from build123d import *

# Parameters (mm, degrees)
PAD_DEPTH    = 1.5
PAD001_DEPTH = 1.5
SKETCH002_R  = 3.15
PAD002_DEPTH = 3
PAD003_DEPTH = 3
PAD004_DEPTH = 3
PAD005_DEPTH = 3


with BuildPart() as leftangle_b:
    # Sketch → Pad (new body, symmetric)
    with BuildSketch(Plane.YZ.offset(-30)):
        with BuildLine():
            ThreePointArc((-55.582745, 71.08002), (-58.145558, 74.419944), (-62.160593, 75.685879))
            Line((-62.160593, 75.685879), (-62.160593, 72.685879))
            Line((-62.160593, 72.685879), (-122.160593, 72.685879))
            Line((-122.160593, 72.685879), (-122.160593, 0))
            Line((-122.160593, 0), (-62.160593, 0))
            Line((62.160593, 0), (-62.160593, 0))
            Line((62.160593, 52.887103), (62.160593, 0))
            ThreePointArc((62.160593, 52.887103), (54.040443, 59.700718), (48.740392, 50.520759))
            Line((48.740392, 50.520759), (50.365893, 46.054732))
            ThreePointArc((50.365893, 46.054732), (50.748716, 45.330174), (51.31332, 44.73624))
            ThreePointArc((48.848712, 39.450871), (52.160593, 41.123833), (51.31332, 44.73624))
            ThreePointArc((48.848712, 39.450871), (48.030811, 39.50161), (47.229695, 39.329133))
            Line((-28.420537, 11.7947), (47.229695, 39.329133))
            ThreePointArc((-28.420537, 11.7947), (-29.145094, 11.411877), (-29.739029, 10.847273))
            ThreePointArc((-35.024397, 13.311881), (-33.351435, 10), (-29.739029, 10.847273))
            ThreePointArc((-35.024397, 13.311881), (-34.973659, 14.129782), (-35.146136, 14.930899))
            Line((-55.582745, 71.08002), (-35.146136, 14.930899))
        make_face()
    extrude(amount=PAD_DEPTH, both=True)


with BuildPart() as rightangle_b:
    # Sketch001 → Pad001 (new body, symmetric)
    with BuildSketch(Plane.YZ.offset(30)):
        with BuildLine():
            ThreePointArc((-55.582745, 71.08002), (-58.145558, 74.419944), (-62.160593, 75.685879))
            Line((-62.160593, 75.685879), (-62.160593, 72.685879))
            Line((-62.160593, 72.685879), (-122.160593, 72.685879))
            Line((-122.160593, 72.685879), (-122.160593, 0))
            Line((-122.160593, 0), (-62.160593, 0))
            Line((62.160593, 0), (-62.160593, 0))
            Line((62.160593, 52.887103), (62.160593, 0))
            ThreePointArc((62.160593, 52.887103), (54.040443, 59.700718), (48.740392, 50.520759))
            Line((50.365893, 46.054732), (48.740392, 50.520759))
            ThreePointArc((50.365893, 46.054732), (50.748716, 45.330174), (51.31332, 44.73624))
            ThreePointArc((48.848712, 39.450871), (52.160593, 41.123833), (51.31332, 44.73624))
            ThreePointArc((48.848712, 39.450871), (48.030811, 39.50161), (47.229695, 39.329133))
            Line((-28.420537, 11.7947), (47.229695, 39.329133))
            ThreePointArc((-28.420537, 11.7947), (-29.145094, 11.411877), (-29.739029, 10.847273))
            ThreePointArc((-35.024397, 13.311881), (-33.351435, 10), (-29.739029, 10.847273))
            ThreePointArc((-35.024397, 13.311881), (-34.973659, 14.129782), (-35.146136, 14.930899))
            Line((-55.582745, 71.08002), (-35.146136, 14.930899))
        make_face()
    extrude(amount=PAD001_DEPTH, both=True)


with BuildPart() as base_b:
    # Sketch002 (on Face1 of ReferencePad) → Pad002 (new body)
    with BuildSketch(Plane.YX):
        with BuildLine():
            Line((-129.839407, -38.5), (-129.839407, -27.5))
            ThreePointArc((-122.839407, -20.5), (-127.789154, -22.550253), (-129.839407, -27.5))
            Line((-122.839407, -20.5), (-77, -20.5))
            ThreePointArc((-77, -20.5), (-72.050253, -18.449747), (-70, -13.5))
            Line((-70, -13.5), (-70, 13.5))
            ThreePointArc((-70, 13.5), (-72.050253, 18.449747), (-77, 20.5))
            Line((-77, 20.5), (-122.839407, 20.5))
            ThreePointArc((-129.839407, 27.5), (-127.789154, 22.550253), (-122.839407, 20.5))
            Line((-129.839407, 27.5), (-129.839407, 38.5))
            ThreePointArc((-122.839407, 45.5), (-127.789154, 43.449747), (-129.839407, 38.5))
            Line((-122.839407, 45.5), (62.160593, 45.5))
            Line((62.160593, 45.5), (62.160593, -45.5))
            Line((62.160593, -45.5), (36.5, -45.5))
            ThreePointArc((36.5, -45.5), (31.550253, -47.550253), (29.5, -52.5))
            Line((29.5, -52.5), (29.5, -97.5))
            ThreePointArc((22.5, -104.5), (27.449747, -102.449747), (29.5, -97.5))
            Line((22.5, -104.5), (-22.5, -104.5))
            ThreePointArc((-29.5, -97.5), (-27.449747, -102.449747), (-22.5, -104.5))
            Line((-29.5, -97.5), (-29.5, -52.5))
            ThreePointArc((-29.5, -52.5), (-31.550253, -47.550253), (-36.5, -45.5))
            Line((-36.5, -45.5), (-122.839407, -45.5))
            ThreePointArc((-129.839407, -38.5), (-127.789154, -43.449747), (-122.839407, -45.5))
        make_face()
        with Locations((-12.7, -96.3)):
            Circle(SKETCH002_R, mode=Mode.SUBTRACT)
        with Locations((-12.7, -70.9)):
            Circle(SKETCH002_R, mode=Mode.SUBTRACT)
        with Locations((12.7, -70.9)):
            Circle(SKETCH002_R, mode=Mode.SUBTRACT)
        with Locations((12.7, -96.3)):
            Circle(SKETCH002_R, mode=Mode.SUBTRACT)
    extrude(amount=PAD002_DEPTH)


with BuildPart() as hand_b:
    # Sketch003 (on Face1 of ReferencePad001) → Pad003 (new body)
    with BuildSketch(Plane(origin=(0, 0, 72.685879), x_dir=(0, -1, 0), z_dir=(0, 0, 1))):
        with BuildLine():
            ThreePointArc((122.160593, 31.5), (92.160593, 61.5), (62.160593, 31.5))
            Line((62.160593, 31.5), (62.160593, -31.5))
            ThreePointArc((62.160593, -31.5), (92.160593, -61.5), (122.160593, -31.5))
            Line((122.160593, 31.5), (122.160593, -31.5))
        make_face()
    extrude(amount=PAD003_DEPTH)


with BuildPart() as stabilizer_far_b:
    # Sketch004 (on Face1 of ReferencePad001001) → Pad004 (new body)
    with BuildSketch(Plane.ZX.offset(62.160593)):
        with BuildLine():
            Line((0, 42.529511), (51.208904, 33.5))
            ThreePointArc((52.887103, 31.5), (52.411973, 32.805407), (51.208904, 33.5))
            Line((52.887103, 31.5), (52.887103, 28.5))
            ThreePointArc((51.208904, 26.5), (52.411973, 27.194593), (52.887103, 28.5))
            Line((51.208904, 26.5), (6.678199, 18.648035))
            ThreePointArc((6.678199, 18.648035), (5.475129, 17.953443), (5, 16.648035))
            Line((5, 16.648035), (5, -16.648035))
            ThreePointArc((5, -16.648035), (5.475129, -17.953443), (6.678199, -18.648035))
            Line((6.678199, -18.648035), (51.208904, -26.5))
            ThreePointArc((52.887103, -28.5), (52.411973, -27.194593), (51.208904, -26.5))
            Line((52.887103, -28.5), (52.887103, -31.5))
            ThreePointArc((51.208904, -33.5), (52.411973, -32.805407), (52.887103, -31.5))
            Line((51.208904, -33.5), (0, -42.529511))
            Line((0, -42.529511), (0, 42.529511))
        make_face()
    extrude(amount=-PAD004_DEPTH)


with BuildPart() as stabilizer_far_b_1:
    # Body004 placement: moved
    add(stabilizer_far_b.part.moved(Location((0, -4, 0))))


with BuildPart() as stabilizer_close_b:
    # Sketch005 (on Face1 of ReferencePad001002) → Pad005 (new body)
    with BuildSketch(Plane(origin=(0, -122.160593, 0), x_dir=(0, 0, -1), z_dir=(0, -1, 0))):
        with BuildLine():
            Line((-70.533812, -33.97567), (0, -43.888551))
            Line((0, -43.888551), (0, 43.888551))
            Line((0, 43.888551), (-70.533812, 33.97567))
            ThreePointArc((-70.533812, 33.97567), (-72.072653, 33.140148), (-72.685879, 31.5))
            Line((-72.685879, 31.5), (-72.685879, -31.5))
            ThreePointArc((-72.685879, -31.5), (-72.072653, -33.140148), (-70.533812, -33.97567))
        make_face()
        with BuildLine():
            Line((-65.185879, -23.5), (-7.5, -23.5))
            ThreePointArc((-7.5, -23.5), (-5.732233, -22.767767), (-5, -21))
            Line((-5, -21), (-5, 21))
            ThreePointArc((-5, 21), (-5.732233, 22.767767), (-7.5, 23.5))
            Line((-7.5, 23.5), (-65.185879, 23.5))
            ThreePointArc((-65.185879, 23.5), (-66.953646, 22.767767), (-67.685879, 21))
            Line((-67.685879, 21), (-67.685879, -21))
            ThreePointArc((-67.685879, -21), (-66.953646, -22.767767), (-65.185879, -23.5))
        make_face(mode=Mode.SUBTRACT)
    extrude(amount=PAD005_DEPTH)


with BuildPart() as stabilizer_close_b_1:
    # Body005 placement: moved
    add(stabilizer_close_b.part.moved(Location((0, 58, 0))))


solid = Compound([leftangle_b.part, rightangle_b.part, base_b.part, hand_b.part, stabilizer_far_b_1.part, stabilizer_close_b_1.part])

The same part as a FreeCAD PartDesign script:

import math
import FreeCAD as App
import Part
import Sketcher
from FreeCAD import Vector
Q = App.Units.Quantity

doc = App.newDocument("Part")
body = doc.addObject("PartDesign::Body", "Body")

sketch1 = body.newObject("Sketcher::SketchObject", "Sketch")
sketch1.AttachmentSupport = (doc.getObject("YZ_Plane"), [""])
sketch1.MapMode = "FlatFace"
sketch1.AttachmentOffset = App.Placement(Vector(0, 0, -30), App.Rotation())
sketch1.addGeometry(Part.ArcOfCircle(Part.Circle(Vector(-62.160591, 68.685882, 0), Vector(0, 0, 1), 6.999997), math.radians(19.999981), math.radians(90.000016)), False)
sketch1.addGeometry(Part.LineSegment(Vector(-62.160593, 75.685879, 0), Vector(-62.160593, 72.685879, 0)), False)
sketch1.addGeometry(Part.LineSegment(Vector(-62.160593, 72.685879, 0), Vector(-122.160593, 72.685879, 0)), False)
sketch1.addGeometry(Part.LineSegment(Vector(-122.160593, 72.685879, 0), Vector(-122.160593, 0, 0)), False)
sketch1.addGeometry(Part.LineSegment(Vector(-122.160593, 0, 0), Vector(62.160593, 0, 0)), False)
sketch1.addGeometry(Part.LineSegment(Vector(62.160593, 0, 0), Vector(62.160593, 52.887103, 0)), False)
sketch1.addGeometry(Part.ArcOfCircle(Part.Circle(Vector(55.241867, 52.887103, 0), Vector(0, 0, 1), 6.918726), math.radians(-0.000002), math.radians(200.000006)), False)
sketch1.addGeometry(Part.LineSegment(Vector(48.740392, 50.520759, 0), Vector(50.365893, 46.054732, 0)), False)
sketch1.addGeometry(Part.ArcOfCircle(Part.Circle(Vector(53.184967, 47.080789, 0), Vector(0, 0, 1), 2.999995), math.radians(-160.000043), math.radians(-128.600279)), False)
sketch1.addGeometry(Part.ArcOfCircle(Part.Circle(Vector(49.441669, 42.391688, 0), Vector(0, 0, 1), 3), math.radians(-101.399713), math.radians(51.399714)), False)
sketch1.addGeometry(Part.ArcOfCircle(Part.Circle(Vector(48.255753, 36.510067, 0), Vector(0, 0, 1), 2.999988), math.radians(78.600208), math.radians(110.000038)), False)
sketch1.addGeometry(Part.LineSegment(Vector(47.229695, 39.329133, 0), Vector(-28.420537, 11.7947, 0)), False)
sketch1.addGeometry(Part.ArcOfCircle(Part.Circle(Vector(-27.394471, 8.975613, 0), Vector(0, 0, 1), 3.000011), math.radians(110.000038), math.radians(141.39964)), False)
sketch1.addGeometry(Part.ArcOfCircle(Part.Circle(Vector(-32.083581, 12.718923, 0), Vector(0, 0, 1), 3), math.radians(168.600279), math.radians(321.399713)), False)
sketch1.addGeometry(Part.ArcOfCircle(Part.Circle(Vector(-37.965219, 13.904837, 0), Vector(0, 0, 1), 3.000005), math.radians(-11.399675), math.radians(19.999986)), False)
sketch1.addGeometry(Part.LineSegment(Vector(-35.146136, 14.930899, 0), Vector(-55.582745, 71.08002, 0)), False)
sketch1.addConstraint(Sketcher.Constraint("Coincident", 0, 2, 1, 1))
sketch1.addConstraint(Sketcher.Constraint("Coincident", 1, 2, 2, 1))
sketch1.addConstraint(Sketcher.Constraint("Coincident", 2, 2, 3, 1))
sketch1.addConstraint(Sketcher.Constraint("Coincident", 3, 2, 4, 1))
sketch1.addConstraint(Sketcher.Constraint("Coincident", 4, 2, 5, 1))
sketch1.addConstraint(Sketcher.Constraint("Coincident", 5, 2, 6, 1))
sketch1.addConstraint(Sketcher.Constraint("Coincident", 6, 2, 7, 1))
sketch1.addConstraint(Sketcher.Constraint("Coincident", 7, 2, 8, 1))
sketch1.addConstraint(Sketcher.Constraint("Coincident", 8, 2, 9, 2))
sketch1.addConstraint(Sketcher.Constraint("Coincident", 9, 1, 10, 1))
sketch1.addConstraint(Sketcher.Constraint("Coincident", 10, 2, 11, 1))
sketch1.addConstraint(Sketcher.Constraint("Coincident", 11, 2, 12, 1))
sketch1.addConstraint(Sketcher.Constraint("Coincident", 12, 2, 13, 2))
sketch1.addConstraint(Sketcher.Constraint("Coincident", 13, 1, 14, 1))
sketch1.addConstraint(Sketcher.Constraint("Coincident", 14, 2, 15, 1))
sketch1.addConstraint(Sketcher.Constraint("Coincident", 15, 2, 0, 1))
sketch1.addConstraint(Sketcher.Constraint("Vertical", 1))
sketch1.addConstraint(Sketcher.Constraint("Horizontal", 2))
sketch1.addConstraint(Sketcher.Constraint("Vertical", 3))
sketch1.addConstraint(Sketcher.Constraint("Horizontal", 4))
sketch1.addConstraint(Sketcher.Constraint("Vertical", 5))
sketch1.addConstraint(Sketcher.Constraint("PointOnObject", 3, 2, -1))
sketch1.addConstraint(Sketcher.Constraint("Radius", 9, 3.0))
sketch1.addConstraint(Sketcher.Constraint("Radius", 13, 3.0))
sketch1.addConstraint(Sketcher.Constraint("DistanceX", 2, 2, 2, 1, 60.0))
sketch1.addConstraint(Sketcher.Constraint("DistanceY", 1, 2, 1, 1, 3.0))
sketch1.addConstraint(Sketcher.Constraint("DistanceX", 2, 2, 0, 3, 60.000002))
sketch1.addConstraint(Sketcher.Constraint("Radius", 12, 3.000011))
sketch1.addConstraint(Sketcher.Constraint("Radius", 0, 6.999997))
sketch1.addConstraint(Sketcher.Constraint("Radius", 6, 6.918726))
sketch1.addConstraint(Sketcher.Constraint("Radius", 8, 2.999995))
sketch1.addConstraint(Sketcher.Constraint("Radius", 10, 2.999988))
sketch1.addConstraint(Sketcher.Constraint("Radius", 14, 3.000005))
sketch1.addConstraint(Sketcher.Constraint("DistanceY", 3, 2, 3, 1, 72.685879))
sketch1.addConstraint(Sketcher.Constraint("DistanceY", -1, 1, 11, 2, 11.7947))
sketch1.addConstraint(Sketcher.Constraint("DistanceY", -1, 1, 14, 2, 14.930899))
sketch1.addConstraint(Sketcher.Constraint("DistanceX", 8, 3, 6, 3, 2.0569))
sketch1.addConstraint(Sketcher.Constraint("DistanceX", 9, 3, 8, 3, 3.743298))
sketch1.addConstraint(Sketcher.Constraint("DistanceX", 6, 2, 5, 2, 13.420201))
sketch1.addConstraint(Sketcher.Constraint("DistanceX", 6, 2, 7, 2, 1.625501))
sketch1.addConstraint(Sketcher.Constraint("DistanceY", 10, 2, 7, 2, 6.725599))
sketch1.addConstraint(Sketcher.Constraint("DistanceX", 14, 2, 11, 2, 6.725599))
sketch1.addConstraint(Sketcher.Constraint("DistanceX", 4, 1, 4, 2, 184.321186))
sketch1.addConstraint(Sketcher.Constraint("DistanceY", 5, 1, 5, 2, 52.887103))
sketch1.addConstraint(Sketcher.Constraint("DistanceX", 0, 3, -1, 1, 62.160591))
sketch1.addConstraint(Sketcher.Constraint("DistanceY", -1, 1, 8, 3, 47.080789))
sketch1.addConstraint(Sketcher.Constraint("DistanceX", 12, 3, -1, 1, 27.394471))
sketch1.addConstraint(Sketcher.Constraint("DistanceX", 13, 3, -1, 1, 32.083581))
sketch1.addConstraint(Sketcher.Constraint("DistanceX", 14, 3, -1, 1, 37.965219))
sketch1.addConstraint(Sketcher.Constraint("DistanceY", -1, 1, 6, 2, 50.520759))
sketch1.addConstraint(Sketcher.Constraint("DistanceX", -1, 1, 8, 2, 51.31332))
sketch1.addConstraint(Sketcher.Constraint("DistanceY", -1, 1, 9, 1, 39.450871))
sketch1.addConstraint(Sketcher.Constraint("DistanceX", 12, 2, -1, 1, 29.739029))
sketch1.addConstraint(Sketcher.Constraint("DistanceY", -1, 1, 13, 1, 13.311881))
sketch1.addConstraint(Sketcher.Constraint("DistanceY", -1, 1, 15, 2, 71.08002))
sketch1.addConstraint(Sketcher.Constraint("DistanceY", 10, 3, 9, 3, 5.88162))
pad1 = body.newObject("PartDesign::Pad", "Pad")
pad1.Profile = sketch1
pad1.Length = 3
pad1.Midplane = True
body2 = doc.addObject("PartDesign::Body", "Body001")

sketch2 = body2.newObject("Sketcher::SketchObject", "Sketch001")
sketch2.AttachmentSupport = (doc.getObject("YZ_Plane001"), [""])
sketch2.MapMode = "FlatFace"
sketch2.AttachmentOffset = App.Placement(Vector(0, 0, 30), App.Rotation())
sketch2.addGeometry(Part.ArcOfCircle(Part.Circle(Vector(-62.160591, 68.685882, 0), Vector(0, 0, 1), 6.999997), math.radians(19.999981), math.radians(90.000016)), False)
sketch2.addGeometry(Part.LineSegment(Vector(-62.160593, 75.685879, 0), Vector(-62.160593, 72.685879, 0)), False)
sketch2.addGeometry(Part.LineSegment(Vector(-62.160593, 72.685879, 0), Vector(-122.160593, 72.685879, 0)), False)
sketch2.addGeometry(Part.LineSegment(Vector(-122.160593, 72.685879, 0), Vector(-122.160593, 0, 0)), False)
sketch2.addGeometry(Part.LineSegment(Vector(-122.160593, 0, 0), Vector(62.160593, 0, 0)), False)
sketch2.addGeometry(Part.LineSegment(Vector(62.160593, 0, 0), Vector(62.160593, 52.887103, 0)), False)
sketch2.addGeometry(Part.ArcOfCircle(Part.Circle(Vector(55.241867, 52.887103, 0), Vector(0, 0, 1), 6.918726), math.radians(-0.000002), math.radians(200.000006)), False)
sketch2.addGeometry(Part.LineSegment(Vector(48.740392, 50.520759, 0), Vector(50.365893, 46.054732, 0)), False)
sketch2.addGeometry(Part.ArcOfCircle(Part.Circle(Vector(53.184967, 47.080789, 0), Vector(0, 0, 1), 2.999995), math.radians(-160.000043), math.radians(-128.600279)), False)
sketch2.addGeometry(Part.ArcOfCircle(Part.Circle(Vector(49.441669, 42.391688, 0), Vector(0, 0, 1), 3), math.radians(-101.399713), math.radians(51.399714)), False)
sketch2.addGeometry(Part.ArcOfCircle(Part.Circle(Vector(48.255753, 36.510067, 0), Vector(0, 0, 1), 2.999988), math.radians(78.600208), math.radians(110.000038)), False)
sketch2.addGeometry(Part.LineSegment(Vector(47.229695, 39.329133, 0), Vector(-28.420537, 11.7947, 0)), False)
sketch2.addGeometry(Part.ArcOfCircle(Part.Circle(Vector(-27.394471, 8.975613, 0), Vector(0, 0, 1), 3.000011), math.radians(110.000038), math.radians(141.39964)), False)
sketch2.addGeometry(Part.ArcOfCircle(Part.Circle(Vector(-32.083581, 12.718923, 0), Vector(0, 0, 1), 3), math.radians(168.600279), math.radians(321.399713)), False)
sketch2.addGeometry(Part.ArcOfCircle(Part.Circle(Vector(-37.965219, 13.904837, 0), Vector(0, 0, 1), 3.000005), math.radians(-11.399675), math.radians(19.999986)), False)
sketch2.addGeometry(Part.LineSegment(Vector(-35.146136, 14.930899, 0), Vector(-55.582745, 71.08002, 0)), False)
sketch2.addConstraint(Sketcher.Constraint("Coincident", 0, 2, 1, 1))
sketch2.addConstraint(Sketcher.Constraint("Coincident", 1, 2, 2, 1))
sketch2.addConstraint(Sketcher.Constraint("Coincident", 2, 2, 3, 1))
sketch2.addConstraint(Sketcher.Constraint("Coincident", 3, 2, 4, 1))
sketch2.addConstraint(Sketcher.Constraint("Coincident", 4, 2, 5, 1))
sketch2.addConstraint(Sketcher.Constraint("Coincident", 5, 2, 6, 1))
sketch2.addConstraint(Sketcher.Constraint("Coincident", 6, 2, 7, 1))
sketch2.addConstraint(Sketcher.Constraint("Coincident", 7, 2, 8, 1))
sketch2.addConstraint(Sketcher.Constraint("Coincident", 8, 2, 9, 2))
sketch2.addConstraint(Sketcher.Constraint("Coincident", 9, 1, 10, 1))
sketch2.addConstraint(Sketcher.Constraint("Coincident", 10, 2, 11, 1))
sketch2.addConstraint(Sketcher.Constraint("Coincident", 11, 2, 12, 1))
sketch2.addConstraint(Sketcher.Constraint("Coincident", 12, 2, 13, 2))
sketch2.addConstraint(Sketcher.Constraint("Coincident", 13, 1, 14, 1))
sketch2.addConstraint(Sketcher.Constraint("Coincident", 14, 2, 15, 1))
sketch2.addConstraint(Sketcher.Constraint("Coincident", 15, 2, 0, 1))
sketch2.addConstraint(Sketcher.Constraint("Vertical", 1))
sketch2.addConstraint(Sketcher.Constraint("Horizontal", 2))
sketch2.addConstraint(Sketcher.Constraint("Vertical", 3))
sketch2.addConstraint(Sketcher.Constraint("Horizontal", 4))
sketch2.addConstraint(Sketcher.Constraint("Vertical", 5))
sketch2.addConstraint(Sketcher.Constraint("PointOnObject", 3, 2, -1))
sketch2.addConstraint(Sketcher.Constraint("Radius", 9, 3.0))
sketch2.addConstraint(Sketcher.Constraint("Radius", 13, 3.0))
sketch2.addConstraint(Sketcher.Constraint("DistanceX", 2, 2, 2, 1, 60.0))
sketch2.addConstraint(Sketcher.Constraint("DistanceY", 1, 2, 1, 1, 3.0))
sketch2.addConstraint(Sketcher.Constraint("DistanceX", 2, 2, 0, 3, 60.000002))
sketch2.addConstraint(Sketcher.Constraint("Radius", 12, 3.000011))
sketch2.addConstraint(Sketcher.Constraint("Radius", 0, 6.999997))
sketch2.addConstraint(Sketcher.Constraint("Radius", 6, 6.918726))
sketch2.addConstraint(Sketcher.Constraint("Radius", 8, 2.999995))
sketch2.addConstraint(Sketcher.Constraint("Radius", 10, 2.999988))
sketch2.addConstraint(Sketcher.Constraint("Radius", 14, 3.000005))
sketch2.addConstraint(Sketcher.Constraint("DistanceY", 3, 2, 3, 1, 72.685879))
sketch2.addConstraint(Sketcher.Constraint("DistanceY", -1, 1, 11, 2, 11.7947))
sketch2.addConstraint(Sketcher.Constraint("DistanceY", -1, 1, 14, 2, 14.930899))
sketch2.addConstraint(Sketcher.Constraint("DistanceX", 8, 3, 6, 3, 2.0569))
sketch2.addConstraint(Sketcher.Constraint("DistanceX", 9, 3, 8, 3, 3.743298))
sketch2.addConstraint(Sketcher.Constraint("DistanceX", 6, 2, 5, 2, 13.420201))
sketch2.addConstraint(Sketcher.Constraint("DistanceX", 6, 2, 7, 2, 1.625501))
sketch2.addConstraint(Sketcher.Constraint("DistanceY", 10, 2, 7, 2, 6.725599))
sketch2.addConstraint(Sketcher.Constraint("DistanceX", 14, 2, 11, 2, 6.725599))
sketch2.addConstraint(Sketcher.Constraint("DistanceX", 4, 1, 4, 2, 184.321186))
sketch2.addConstraint(Sketcher.Constraint("DistanceY", 5, 1, 5, 2, 52.887103))
sketch2.addConstraint(Sketcher.Constraint("DistanceX", 0, 3, -1, 1, 62.160591))
sketch2.addConstraint(Sketcher.Constraint("DistanceY", -1, 1, 8, 3, 47.080789))
sketch2.addConstraint(Sketcher.Constraint("DistanceX", 12, 3, -1, 1, 27.394471))
sketch2.addConstraint(Sketcher.Constraint("DistanceX", 13, 3, -1, 1, 32.083581))
sketch2.addConstraint(Sketcher.Constraint("DistanceX", 14, 3, -1, 1, 37.965219))
sketch2.addConstraint(Sketcher.Constraint("DistanceY", -1, 1, 6, 2, 50.520759))
sketch2.addConstraint(Sketcher.Constraint("DistanceX", -1, 1, 8, 2, 51.31332))
sketch2.addConstraint(Sketcher.Constraint("DistanceY", -1, 1, 9, 1, 39.450871))
sketch2.addConstraint(Sketcher.Constraint("DistanceX", 12, 2, -1, 1, 29.739029))
sketch2.addConstraint(Sketcher.Constraint("DistanceY", -1, 1, 13, 1, 13.311881))
sketch2.addConstraint(Sketcher.Constraint("DistanceY", -1, 1, 15, 2, 71.08002))
sketch2.addConstraint(Sketcher.Constraint("DistanceY", 10, 3, 9, 3, 5.88162))
pad2 = body2.newObject("PartDesign::Pad", "Pad001")
pad2.Profile = sketch2
pad2.Length = 3
pad2.Midplane = True
body3 = doc.addObject("PartDesign::Body", "Body002")

sketch3 = body3.newObject("Sketcher::SketchObject", "Sketch002")
sketch3.AttachmentSupport = (doc.getObject("XY_Plane002"), [""])
sketch3.MapMode = "FlatFace"
sketch3.addGeometry(Part.LineSegment(Vector(-27.5, -129.839407, 0), Vector(-38.5, -129.839407, 0)), False)
sketch3.addGeometry(Part.ArcOfCircle(Part.Circle(Vector(-38.499998, -122.839405, 0), Vector(0, 0, 1), 7.000002), math.radians(-179.999987), math.radians(-90.000013)), False)
sketch3.addGeometry(Part.LineSegment(Vector(-45.5, -122.839407, 0), Vector(-45.5, -36.5, 0)), False)
sketch3.addGeometry(Part.ArcOfCircle(Part.Circle(Vector(-52.500002, -36.500002, 0), Vector(0, 0, 1), 7.000002), math.radians(0.000013), math.radians(89.999987)), False)
sketch3.addGeometry(Part.LineSegment(Vector(-52.5, -29.5, 0), Vector(-97.5, -29.5, 0)), False)
sketch3.addGeometry(Part.ArcOfCircle(Part.Circle(Vector(-97.499998, -22.499998, 0), Vector(0, 0, 1), 7.000002), math.radians(-179.999987), math.radians(-90.000013)), False)
sketch3.addGeometry(Part.LineSegment(Vector(-104.5, -22.5, 0), Vector(-104.5, 22.5, 0)), False)
sketch3.addGeometry(Part.ArcOfCircle(Part.Circle(Vector(-97.499998, 22.499998, 0), Vector(0, 0, 1), 7.000002), math.radians(90.000013), math.radians(179.999987)), False)
sketch3.addGeometry(Part.LineSegment(Vector(-97.5, 29.5, 0), Vector(-52.5, 29.5, 0)), False)
sketch3.addGeometry(Part.ArcOfCircle(Part.Circle(Vector(-52.500002, 36.500002, 0), Vector(0, 0, 1), 7.000002), math.radians(-89.999987), math.radians(-0.000013)), False)
sketch3.addGeometry(Part.LineSegment(Vector(-45.5, 36.5, 0), Vector(-45.5, 62.160593, 0)), False)
sketch3.addGeometry(Part.LineSegment(Vector(-45.5, 62.160593, 0), Vector(45.5, 62.160593, 0)), False)
sketch3.addGeometry(Part.LineSegment(Vector(45.5, 62.160593, 0), Vector(45.5, -122.839407, 0)), False)
sketch3.addGeometry(Part.ArcOfCircle(Part.Circle(Vector(38.499998, -122.839405, 0), Vector(0, 0, 1), 7.000002), math.radians(-89.999987), math.radians(-0.000013)), False)
sketch3.addGeometry(Part.LineSegment(Vector(38.5, -129.839407, 0), Vector(27.5, -129.839407, 0)), False)
sketch3.addGeometry(Part.ArcOfCircle(Part.Circle(Vector(27.500002, -122.839405, 0), Vector(0, 0, 1), 7.000002), math.radians(-179.999987), math.radians(-90.000013)), False)
sketch3.addGeometry(Part.LineSegment(Vector(20.5, -122.839407, 0), Vector(20.5, -77, 0)), False)
sketch3.addGeometry(Part.ArcOfCircle(Part.Circle(Vector(13.499998, -77.000002, 0), Vector(0, 0, 1), 7.000002), math.radians(0.000013), math.radians(89.999987)), False)
sketch3.addGeometry(Part.LineSegment(Vector(13.5, -70, 0), Vector(-13.5, -70, 0)), False)
sketch3.addGeometry(Part.ArcOfCircle(Part.Circle(Vector(-13.499998, -77.000002, 0), Vector(0, 0, 1), 7.000002), math.radians(90.000013), math.radians(179.999987)), False)
sketch3.addGeometry(Part.LineSegment(Vector(-20.5, -77, 0), Vector(-20.5, -122.839407, 0)), False)
sketch3.addGeometry(Part.ArcOfCircle(Part.Circle(Vector(-27.500002, -122.839405, 0), Vector(0, 0, 1), 7.000002), math.radians(-89.999987), math.radians(-0.000013)), False)
sketch3.addGeometry(Part.Circle(Vector(-96.3, 12.7, 0), Vector(0, 0, 1), 3.15), False)
sketch3.addGeometry(Part.Circle(Vector(-96.3, -12.7, 0), Vector(0, 0, 1), 3.15), False)
sketch3.addGeometry(Part.Circle(Vector(-70.9, 12.7, 0), Vector(0, 0, 1), 3.15), False)
sketch3.addGeometry(Part.Circle(Vector(-70.9, -12.7, 0), Vector(0, 0, 1), 3.15), False)
sketch3.addConstraint(Sketcher.Constraint("Tangent", 0, 2, 1, 2))
sketch3.addConstraint(Sketcher.Constraint("Tangent", 1, 1, 2, 1))
sketch3.addConstraint(Sketcher.Constraint("Tangent", 2, 2, 3, 1))
sketch3.addConstraint(Sketcher.Constraint("Tangent", 3, 2, 4, 1))
sketch3.addConstraint(Sketcher.Constraint("Tangent", 4, 2, 5, 2))
sketch3.addConstraint(Sketcher.Constraint("Tangent", 5, 1, 6, 1))
sketch3.addConstraint(Sketcher.Constraint("Tangent", 6, 2, 7, 2))
sketch3.addConstraint(Sketcher.Constraint("Tangent", 7, 1, 8, 1))
sketch3.addConstraint(Sketcher.Constraint("Tangent", 8, 2, 9, 1))
sketch3.addConstraint(Sketcher.Constraint("Tangent", 9, 2, 10, 1))
sketch3.addConstraint(Sketcher.Constraint("Coincident", 10, 2, 11, 1))
sketch3.addConstraint(Sketcher.Constraint("Coincident", 11, 2, 12, 1))
sketch3.addConstraint(Sketcher.Constraint("Tangent", 12, 2, 13, 2))
sketch3.addConstraint(Sketcher.Constraint("Tangent", 13, 1, 14, 1))
sketch3.addConstraint(Sketcher.Constraint("Tangent", 14, 2, 15, 2))
sketch3.addConstraint(Sketcher.Constraint("Tangent", 15, 1, 16, 1))
sketch3.addConstraint(Sketcher.Constraint("Tangent", 16, 2, 17, 1))
sketch3.addConstraint(Sketcher.Constraint("Tangent", 17, 2, 18, 1))
sketch3.addConstraint(Sketcher.Constraint("Tangent", 18, 2, 19, 1))
sketch3.addConstraint(Sketcher.Constraint("Tangent", 19, 2, 20, 1))
sketch3.addConstraint(Sketcher.Constraint("Tangent", 20, 2, 21, 2))
sketch3.addConstraint(Sketcher.Constraint("Tangent", 21, 1, 0, 1))
sketch3.addConstraint(Sketcher.Constraint("Horizontal", 0))
sketch3.addConstraint(Sketcher.Constraint("Vertical", 2))
sketch3.addConstraint(Sketcher.Constraint("Horizontal", 4))
sketch3.addConstraint(Sketcher.Constraint("Vertical", 6))
sketch3.addConstraint(Sketcher.Constraint("Horizontal", 8))
sketch3.addConstraint(Sketcher.Constraint("Vertical", 10))
sketch3.addConstraint(Sketcher.Constraint("Horizontal", 11))
sketch3.addConstraint(Sketcher.Constraint("Vertical", 12))
sketch3.addConstraint(Sketcher.Constraint("Horizontal", 14))
sketch3.addConstraint(Sketcher.Constraint("Vertical", 16))
sketch3.addConstraint(Sketcher.Constraint("Horizontal", 18))
sketch3.addConstraint(Sketcher.Constraint("Vertical", 20))
sketch3.addConstraint(Sketcher.Constraint("Equal", 1, 3))
sketch3.addConstraint(Sketcher.Constraint("Equal", 3, 5))
sketch3.addConstraint(Sketcher.Constraint("Equal", 5, 7))
sketch3.addConstraint(Sketcher.Constraint("Equal", 7, 9))
sketch3.addConstraint(Sketcher.Constraint("Equal", 9, 13))
sketch3.addConstraint(Sketcher.Constraint("Equal", 13, 15))
sketch3.addConstraint(Sketcher.Constraint("Equal", 15, 17))
sketch3.addConstraint(Sketcher.Constraint("Equal", 17, 19))
sketch3.addConstraint(Sketcher.Constraint("Equal", 19, 21))
sketch3.addConstraint(Sketcher.Constraint("Equal", 22, 23))
sketch3.addConstraint(Sketcher.Constraint("Equal", 23, 24))
sketch3.addConstraint(Sketcher.Constraint("Equal", 24, 25))
sketch3.addConstraint(Sketcher.Constraint("Symmetric", 1, 3, 13, 3, -2))
sketch3.addConstraint(Sketcher.Constraint("Symmetric", 3, 3, 9, 3, -1))
sketch3.addConstraint(Sketcher.Constraint("Symmetric", 22, 3, 23, 3, -1))
sketch3.addConstraint(Sketcher.Constraint("Symmetric", 24, 3, 25, 3, -1))
sketch3.addConstraint(Sketcher.Constraint("Horizontal", 22, 3, 24, 3))
sketch3.addConstraint(Sketcher.Constraint("Equal", 0, 14))
sketch3.addConstraint(Sketcher.Constraint("Equal", 8, 6))
sketch3.addConstraint(Sketcher.Constraint("Radius", 1, 7.000002))
sketch3.addConstraint(Sketcher.Constraint("Diameter", 22, 6.3))
sketch3.addConstraint(Sketcher.Constraint("DistanceX", 0, 2, 0, 1, 11.0))
sketch3.addConstraint(Sketcher.Constraint("DistanceX", 4, 2, 4, 1, 45.0))
sketch3.addConstraint(Sketcher.Constraint("DistanceX", 11, 1, 11, 2, 91.0))
sketch3.addConstraint(Sketcher.Constraint("DistanceY", 12, 2, 12, 1, 185.0))
sketch3.addConstraint(Sketcher.Constraint("DistanceY", 17, 3, -1, 1, 77.000002))
sketch3.addConstraint(Sketcher.Constraint("DistanceX", 22, 3, -1, 1, 96.3))
sketch3.addConstraint(Sketcher.Constraint("DistanceY", -1, 1, 22, 3, 12.7))
sketch3.addConstraint(Sketcher.Constraint("DistanceX", 24, 3, -1, 1, 70.9))
sketch3.addConstraint(Sketcher.Constraint("DistanceY", 2, 1, 2, 2, 86.339407))
pad3 = body3.newObject("PartDesign::Pad", "Pad002")
pad3.Profile = sketch3
pad3.Length = 3
pad3.Reversed = True
body4 = doc.addObject("PartDesign::Body", "Body003")

sketch4 = body4.newObject("Sketcher::SketchObject", "Sketch003")
sketch4.AttachmentSupport = (doc.getObject("XY_Plane003"), [""])
sketch4.MapMode = "FlatFace"
sketch4.AttachmentOffset = App.Placement(Vector(0, 0, 72.685879), App.Rotation())
sketch4.addGeometry(Part.ArcOfCircle(Part.Circle(Vector(31.5, -92.160593, 0), Vector(0, 0, 1), 30), math.radians(-90), math.radians(90)), False)
sketch4.addGeometry(Part.LineSegment(Vector(31.5, -62.160593, 0), Vector(-31.5, -62.160593, 0)), False)
sketch4.addGeometry(Part.ArcOfCircle(Part.Circle(Vector(-31.5, -92.160593, 0), Vector(0, 0, 1), 30), math.radians(90), math.radians(270)), False)
sketch4.addGeometry(Part.LineSegment(Vector(-31.5, -122.160593, 0), Vector(31.5, -122.160593, 0)), False)
sketch4.addConstraint(Sketcher.Constraint("Tangent", 0, 2, 1, 1))
sketch4.addConstraint(Sketcher.Constraint("Tangent", 1, 2, 2, 1))
sketch4.addConstraint(Sketcher.Constraint("Tangent", 2, 2, 3, 1))
sketch4.addConstraint(Sketcher.Constraint("Tangent", 3, 2, 0, 1))
sketch4.addConstraint(Sketcher.Constraint("Horizontal", 1))
sketch4.addConstraint(Sketcher.Constraint("Horizontal", 3))
sketch4.addConstraint(Sketcher.Constraint("Radius", 0, 30.0))
sketch4.addConstraint(Sketcher.Constraint("DistanceX", 1, 2, 1, 1, 63.0))
sketch4.addConstraint(Sketcher.Constraint("DistanceX", -1, 1, 0, 3, 31.5))
sketch4.addConstraint(Sketcher.Constraint("DistanceY", 0, 3, -1, 1, 92.160593))
pad4 = body4.newObject("PartDesign::Pad", "Pad003")
pad4.Profile = sketch4
pad4.Length = 3
body5 = doc.addObject("PartDesign::Body", "Body004")

sketch5 = body5.newObject("Sketcher::SketchObject", "Sketch004")
sketch5.AttachmentSupport = (doc.getObject("XZ_Plane004"), [""])
sketch5.MapMode = "FlatFace"
sketch5.AttachmentOffset = App.Placement(Vector(0, 0, -62.160593), App.Rotation())
sketch5.addGeometry(Part.LineSegment(Vector(33.5, 51.208904, 0), Vector(42.529511, 0, 0)), False)
sketch5.addGeometry(Part.LineSegment(Vector(42.529511, 0, 0), Vector(-42.529511, 0, 0)), False)
sketch5.addGeometry(Part.LineSegment(Vector(-42.529511, 0, 0), Vector(-33.5, 51.208904, 0)), False)
sketch5.addGeometry(Part.ArcOfCircle(Part.Circle(Vector(-31.499998, 50.856248, 0), Vector(0, 0, 1), 2.030855), math.radians(90.000051), math.radians(169.99994)), False)
sketch5.addGeometry(Part.LineSegment(Vector(-31.5, 52.887103, 0), Vector(-28.5, 52.887103, 0)), False)
sketch5.addGeometry(Part.ArcOfCircle(Part.Circle(Vector(-28.500002, 50.856248, 0), Vector(0, 0, 1), 2.030855), math.radians(10.00006), math.radians(89.999949)), False)
sketch5.addGeometry(Part.LineSegment(Vector(-26.5, 51.208904, 0), Vector(-18.648035, 6.678199, 0)), False)
sketch5.addGeometry(Part.ArcOfCircle(Part.Circle(Vector(-16.648037, 7.030851, 0), Vector(0, 0, 1), 2.030851), math.radians(-170.000049), math.radians(-89.999942)), False)
sketch5.addGeometry(Part.LineSegment(Vector(-16.648035, 5, 0), Vector(16.648035, 5, 0)), False)
sketch5.addGeometry(Part.ArcOfCircle(Part.Circle(Vector(16.648037, 7.030851, 0), Vector(0, 0, 1), 2.030851), math.radians(-90.000058), math.radians(-9.999951)), False)
sketch5.addGeometry(Part.LineSegment(Vector(18.648035, 6.678199, 0), Vector(26.5, 51.208904, 0)), False)
sketch5.addGeometry(Part.ArcOfCircle(Part.Circle(Vector(28.500002, 50.856248, 0), Vector(0, 0, 1), 2.030855), math.radians(90.000051), math.radians(169.99994)), False)
sketch5.addGeometry(Part.LineSegment(Vector(28.5, 52.887103, 0), Vector(31.5, 52.887103, 0)), False)
sketch5.addGeometry(Part.ArcOfCircle(Part.Circle(Vector(31.499998, 50.856248, 0), Vector(0, 0, 1), 2.030855), math.radians(10.00006), math.radians(89.999949)), False)
sketch5.addConstraint(Sketcher.Constraint("Coincident", 0, 2, 1, 1))
sketch5.addConstraint(Sketcher.Constraint("Coincident", 1, 2, 2, 1))
sketch5.addConstraint(Sketcher.Constraint("Tangent", 2, 2, 3, 2))
sketch5.addConstraint(Sketcher.Constraint("Tangent", 3, 1, 4, 1))
sketch5.addConstraint(Sketcher.Constraint("Tangent", 4, 2, 5, 2))
sketch5.addConstraint(Sketcher.Constraint("Tangent", 5, 1, 6, 1))
sketch5.addConstraint(Sketcher.Constraint("Tangent", 6, 2, 7, 1))
sketch5.addConstraint(Sketcher.Constraint("Tangent", 7, 2, 8, 1))
sketch5.addConstraint(Sketcher.Constraint("Tangent", 8, 2, 9, 1))
sketch5.addConstraint(Sketcher.Constraint("Tangent", 9, 2, 10, 1))
sketch5.addConstraint(Sketcher.Constraint("Tangent", 10, 2, 11, 2))
sketch5.addConstraint(Sketcher.Constraint("Tangent", 11, 1, 12, 1))
sketch5.addConstraint(Sketcher.Constraint("Tangent", 12, 2, 13, 2))
sketch5.addConstraint(Sketcher.Constraint("Tangent", 13, 1, 0, 1))
sketch5.addConstraint(Sketcher.Constraint("Horizontal", 1))
sketch5.addConstraint(Sketcher.Constraint("Horizontal", 4))
sketch5.addConstraint(Sketcher.Constraint("Horizontal", 8))
sketch5.addConstraint(Sketcher.Constraint("Horizontal", 12))
sketch5.addConstraint(Sketcher.Constraint("Equal", 3, 5))
sketch5.addConstraint(Sketcher.Constraint("Equal", 7, 9))
sketch5.addConstraint(Sketcher.Constraint("Equal", 5, 11))
sketch5.addConstraint(Sketcher.Constraint("Equal", 11, 13))
sketch5.addConstraint(Sketcher.Constraint("Symmetric", 0, 2, 1, 2, -1, 1))
sketch5.addConstraint(Sketcher.Constraint("Symmetric", 5, 3, 11, 3, -2))
sketch5.addConstraint(Sketcher.Constraint("Parallel", 0, 6))
sketch5.addConstraint(Sketcher.Constraint("Parallel", 2, 10))
sketch5.addConstraint(Sketcher.Constraint("Horizontal", 2, 2, 5, 1))
sketch5.addConstraint(Sketcher.Constraint("DistanceX", 4, 1, 4, 2, 3.0))
sketch5.addConstraint(Sketcher.Constraint("Angle", 0, Q("-80 deg")))
sketch5.addConstraint(Sketcher.Constraint("DistanceY", -1, 1, 7, 2, 5.0))
sketch5.addConstraint(Sketcher.Constraint("DistanceX", 3, 3, 11, 3, 60.0))
sketch5.addConstraint(Sketcher.Constraint("DistanceX", 2, 2, 3, 3, 2.000002))
sketch5.addConstraint(Sketcher.Constraint("DistanceX", 6, 2, 7, 2, 2.0))
sketch5.addConstraint(Sketcher.Constraint("DistanceX", 1, 2, 1, 1, 85.059022))
pad5 = body5.newObject("PartDesign::Pad", "Pad004")
pad5.Profile = sketch5
pad5.Length = 3
body6 = doc.addObject("PartDesign::Body", "Body005")
doc.recompute()

body5.Placement = App.Placement(Vector(0, -4, 0), App.Rotation(Vector(0, 0, 1), 0))
boolean = body6.newObject("PartDesign::Boolean", "Boolean")
boolean.Type = "Fuse"
boolean.addObjects([body5])
body7 = doc.addObject("PartDesign::Body", "Body006")

sketch6 = body7.newObject("Sketcher::SketchObject", "Sketch005")
sketch6.AttachmentSupport = (doc.getObject("XZ_Plane006"), [""])
sketch6.MapMode = "FlatFace"
sketch6.AttachmentOffset = App.Placement(Vector(0, 0, 122.160593), App.Rotation())
sketch6.addGeometry(Part.LineSegment(Vector(-33.97567, 70.533812, 0), Vector(-43.888551, 0, 0)), False)
sketch6.addGeometry(Part.LineSegment(Vector(-43.888551, 0, 0), Vector(43.888551, 0, 0)), False)
sketch6.addGeometry(Part.LineSegment(Vector(43.888551, 0, 0), Vector(33.97567, 70.533812, 0)), False)
sketch6.addGeometry(Part.ArcOfCircle(Part.Circle(Vector(31.500001, 70.18588, 0), Vector(0, 0, 1), 2.499999), math.radians(7.999981), math.radians(90.000022)), False)
sketch6.addGeometry(Part.LineSegment(Vector(31.5, 72.685879, 0), Vector(-31.5, 72.685879, 0)), False)
sketch6.addGeometry(Part.ArcOfCircle(Part.Circle(Vector(-31.500001, 70.18588, 0), Vector(0, 0, 1), 2.499999), math.radians(89.999978), math.radians(172.000019)), False)
sketch6.addGeometry(Part.LineSegment(Vector(-23.5, 7.5, 0), Vector(-23.5, 65.185879, 0)), False)
sketch6.addGeometry(Part.ArcOfCircle(Part.Circle(Vector(-21, 65.185879, 0), Vector(0, 0, 1), 2.5), math.radians(89.999996), math.radians(180.000004)), False)
sketch6.addGeometry(Part.LineSegment(Vector(-21, 67.685879, 0), Vector(21, 67.685879, 0)), False)
sketch6.addGeometry(Part.ArcOfCircle(Part.Circle(Vector(21, 65.185879, 0), Vector(0, 0, 1), 2.5), math.radians(-0.000004), math.radians(90.000004)), False)
sketch6.addGeometry(Part.LineSegment(Vector(23.5, 65.185879, 0), Vector(23.5, 7.5, 0)), False)
sketch6.addGeometry(Part.ArcOfCircle(Part.Circle(Vector(21, 7.5, 0), Vector(0, 0, 1), 2.5), math.radians(-90.000004), math.radians(0.000004)), False)
sketch6.addGeometry(Part.LineSegment(Vector(21, 5, 0), Vector(-21, 5, 0)), False)
sketch6.addGeometry(Part.ArcOfCircle(Part.Circle(Vector(-21, 7.5, 0), Vector(0, 0, 1), 2.5), math.radians(179.999996), math.radians(270.000004)), False)
sketch6.addConstraint(Sketcher.Constraint("Coincident", 0, 2, 1, 1))
sketch6.addConstraint(Sketcher.Constraint("Coincident", 1, 2, 2, 1))
sketch6.addConstraint(Sketcher.Constraint("Tangent", 2, 2, 3, 1))
sketch6.addConstraint(Sketcher.Constraint("Tangent", 3, 2, 4, 1))
sketch6.addConstraint(Sketcher.Constraint("Tangent", 4, 2, 5, 1))
sketch6.addConstraint(Sketcher.Constraint("Tangent", 5, 2, 0, 1))
sketch6.addConstraint(Sketcher.Constraint("Tangent", 6, 2, 7, 2))
sketch6.addConstraint(Sketcher.Constraint("Tangent", 7, 1, 8, 1))
sketch6.addConstraint(Sketcher.Constraint("Tangent", 8, 2, 9, 2))
sketch6.addConstraint(Sketcher.Constraint("Tangent", 9, 1, 10, 1))
sketch6.addConstraint(Sketcher.Constraint("Tangent", 10, 2, 11, 2))
sketch6.addConstraint(Sketcher.Constraint("Tangent", 11, 1, 12, 1))
sketch6.addConstraint(Sketcher.Constraint("Tangent", 12, 2, 13, 2))
sketch6.addConstraint(Sketcher.Constraint("Tangent", 13, 1, 6, 1))
sketch6.addConstraint(Sketcher.Constraint("Horizontal", 1))
sketch6.addConstraint(Sketcher.Constraint("Horizontal", 4))
sketch6.addConstraint(Sketcher.Constraint("Vertical", 6))
sketch6.addConstraint(Sketcher.Constraint("Horizontal", 8))
sketch6.addConstraint(Sketcher.Constraint("Vertical", 10))
sketch6.addConstraint(Sketcher.Constraint("Horizontal", 12))
sketch6.addConstraint(Sketcher.Constraint("Equal", 3, 5))
sketch6.addConstraint(Sketcher.Constraint("Equal", 5, 7))
sketch6.addConstraint(Sketcher.Constraint("Equal", 7, 9))
sketch6.addConstraint(Sketcher.Constraint("Equal", 9, 11))
sketch6.addConstraint(Sketcher.Constraint("Equal", 11, 13))
sketch6.addConstraint(Sketcher.Constraint("Symmetric", 0, 2, 1, 2, -1, 1))
sketch6.addConstraint(Sketcher.Constraint("Horizontal", 2, 2, 5, 2))
sketch6.addConstraint(Sketcher.Constraint("Radius", 3, 2.499999))
sketch6.addConstraint(Sketcher.Constraint("DistanceX", 4, 2, 4, 1, 63.0))
sketch6.addConstraint(Sketcher.Constraint("DistanceX", 8, 1, 8, 2, 42.0))
sketch6.addConstraint(Sketcher.Constraint("Angle", 0, Q("-98 deg")))
sketch6.addConstraint(Sketcher.Constraint("DistanceX", 7, 3, -1, 1, 21.0))
sketch6.addConstraint(Sketcher.Constraint("DistanceY", -1, 1, 11, 1, 5.0))
sketch6.addConstraint(Sketcher.Constraint("DistanceY", 7, 3, 5, 3, 5.000001))
sketch6.addConstraint(Sketcher.Constraint("DistanceX", 1, 1, 1, 2, 87.777102))
pad6 = body7.newObject("PartDesign::Pad", "Pad005")
pad6.Profile = sketch6
pad6.Length = 3
body8 = doc.addObject("PartDesign::Body", "Body007")
doc.recompute()

body7.Placement = App.Placement(Vector(0, 58, 0), App.Rotation(Vector(0, 0, 1), 0))
boolean2 = body8.newObject("PartDesign::Boolean", "Boolean001")
boolean2.Type = "Fuse"
boolean2.addObjects([body7])

doc.recompute()
